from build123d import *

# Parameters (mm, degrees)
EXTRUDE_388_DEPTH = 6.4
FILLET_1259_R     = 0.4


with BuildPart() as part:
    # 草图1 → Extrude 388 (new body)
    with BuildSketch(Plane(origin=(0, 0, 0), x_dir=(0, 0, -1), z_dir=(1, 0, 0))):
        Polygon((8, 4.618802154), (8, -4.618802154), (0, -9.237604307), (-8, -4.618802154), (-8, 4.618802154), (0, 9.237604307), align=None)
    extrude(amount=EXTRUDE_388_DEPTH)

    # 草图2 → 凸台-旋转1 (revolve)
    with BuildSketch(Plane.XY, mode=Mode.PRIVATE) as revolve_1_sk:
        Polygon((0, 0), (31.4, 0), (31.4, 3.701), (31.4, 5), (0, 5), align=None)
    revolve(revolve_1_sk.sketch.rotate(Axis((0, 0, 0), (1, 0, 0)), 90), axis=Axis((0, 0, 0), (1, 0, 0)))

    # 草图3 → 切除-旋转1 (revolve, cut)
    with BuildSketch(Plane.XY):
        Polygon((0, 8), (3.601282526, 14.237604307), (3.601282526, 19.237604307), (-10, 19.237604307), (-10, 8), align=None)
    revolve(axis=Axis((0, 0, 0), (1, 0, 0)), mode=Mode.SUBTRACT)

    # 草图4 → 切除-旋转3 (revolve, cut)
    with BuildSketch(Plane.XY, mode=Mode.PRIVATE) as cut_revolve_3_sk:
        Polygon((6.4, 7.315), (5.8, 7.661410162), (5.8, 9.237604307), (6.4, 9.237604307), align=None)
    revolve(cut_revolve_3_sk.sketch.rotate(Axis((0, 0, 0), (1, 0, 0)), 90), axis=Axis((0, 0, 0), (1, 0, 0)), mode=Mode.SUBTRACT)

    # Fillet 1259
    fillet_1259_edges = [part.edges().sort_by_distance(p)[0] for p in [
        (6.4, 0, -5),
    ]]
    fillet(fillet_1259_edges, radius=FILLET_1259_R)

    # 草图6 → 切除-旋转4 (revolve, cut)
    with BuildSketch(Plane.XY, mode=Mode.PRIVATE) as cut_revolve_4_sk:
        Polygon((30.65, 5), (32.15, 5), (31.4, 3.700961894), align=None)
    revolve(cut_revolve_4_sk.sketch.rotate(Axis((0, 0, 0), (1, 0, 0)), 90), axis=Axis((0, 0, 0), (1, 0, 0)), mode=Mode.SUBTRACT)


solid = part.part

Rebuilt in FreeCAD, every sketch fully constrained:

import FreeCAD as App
import Part
import Sketcher
from FreeCAD import Vector
Q = App.Units.Quantity


def edges_at(feature, points):
    """Names of the edges that pass closest to the given points."""
    edges = feature.Shape.Edges
    near = lambda p: min(range(len(edges)), key=lambda i: edges[i].distToShape(Part.Vertex(*p))[0])
    return sorted({f"Edge{near(p) + 1}" for p in points})


def add_polygon(sketch, points):
    """Adds a closed chain of lines whose ends are joined by coincident constraints."""
    first, n = sketch.GeometryCount, len(points)
    for a, b in zip(points, points[1:] + points[:1]):
        sketch.addGeometry(Part.LineSegment(App.Vector(*a, 0), App.Vector(*b, 0)), False)
    for i in range(n):
        sketch.addConstraint(Sketcher.Constraint("Coincident", first + i, 2, first + (i + 1) % n, 1))

doc = App.newDocument("Part")
params = doc.addObject("Spreadsheet::Sheet", "Params")
for row, (alias, value) in enumerate([
    ("pad1_length", "6.4 mm"),
    ("sketch2_height", "5 mm"),
    ("sketch2_width", "31.4 mm"),
    ("revolution_angle", "360 deg"),
    ("sketch3_width", "10 mm"),
    ("sketch3_height", "5 mm"),
    ("groove_angle", "360 deg"),
    ("sketch4_width", "0.6 mm"),
    ("groove2_angle", "360 deg"),
    ("fillet_radius", "0.4 mm"),
    ("sketch5_width", "1.5 mm"),
    ("groove3_angle", "360 deg"),
], start=1):
    params.set(f"A{row}", alias)
    params.set(f"B{row}", "=" + value)
    params.setAlias(f"B{row}", alias)

body = doc.addObject("PartDesign::Body", "Body")

# Sketch on YZ plane
sketch1 = doc.addObject("Sketcher::SketchObject", "Sketch")
body.addObject(sketch1)
sketch1.AttachmentSupport = (doc.YZ_Plane, [""])
sketch1.MapMode = "FlatFace"
add_polygon(sketch1, [(-4.618802, -8), (4.618802, -8), (9.237604, 0), (4.618802, 8), (-4.618802, 8), (-9.237604, 0)])  # lines 0-5
sketch1.addConstraint([
    Sketcher.Constraint("Horizontal", 0),
    Sketcher.Constraint("Horizontal", 3),
    Sketcher.Constraint("Symmetric", 0, 2, 3, 2, -1, 1),
    Sketcher.Constraint("Symmetric", 1, 2, 4, 2, -1, 1),
    Sketcher.Constraint("PointOnObject", 1, 2, -1),
    Sketcher.Constraint("Parallel", 2, 5),
    Sketcher.Constraint("Vertical", 0, 2, 2, 2),
    Sketcher.Constraint("Angle", 1, Q("60 deg")),
    Sketcher.Constraint("DistanceY", 0, 2, -1, 1, Q("8 mm")),
    Sketcher.Constraint("DistanceX", 0, 1, 0, 2, Q("9.237604 mm")),
])
pad1 = doc.addObject("PartDesign::Pad", "Pad")
body.addObject(pad1)
pad1.Profile = sketch1
pad1.setExpression("Length", "Params.pad1_length")

# Sketch on XY plane
sketch2 = doc.addObject("Sketcher::SketchObject", "Sketch001")
body.addObject(sketch2)
sketch2.AttachmentSupport = (doc.XY_Plane, [""])
sketch2.MapMode = "FlatFace"
add_polygon(sketch2, [(0, 0), (31.4, 0), (31.4, 5), (0, 5)])  # lines 0-3
sketch2.addConstraint([
    Sketcher.Constraint("Horizontal", 0),
    Sketcher.Constraint("Vertical", 1),
    Sketcher.Constraint("Horizontal", 2),
    Sketcher.Constraint("Vertical", 3),
    Sketcher.Constraint("Coincident", 3, 2, -1, 1),
    Sketcher.Constraint("DistanceY", 1, 1, 1, 2, Q("5 mm")),
    Sketcher.Constraint("DistanceX", 0, 1, 0, 2, Q("31.4 mm")),
])
sketch2.setExpression("Constraints[9]", "Params.sketch2_height")
sketch2.setExpression("Constraints[10]", "Params.sketch2_width")
revolution = doc.addObject("PartDesign::Revolution", "Revolution")
body.addObject(revolution)
revolution.Profile = sketch2
revolution.ReferenceAxis = (sketch2, ["H_Axis"])
revolution.setExpression("Angle", "Params.revolution_angle")

# Sketch on XY plane
sketch3 = doc.addObject("Sketcher::SketchObject", "Sketch002")
body.addObject(sketch3)
sketch3.AttachmentSupport = (doc.XY_Plane, [""])
sketch3.MapMode = "FlatFace"
add_polygon(sketch3, [(0, 8), (3.601283, 14.237604), (3.601283, 19.237604), (-10, 19.237604), (-10, 8)])  # lines 0-4
sketch3.addConstraint([
    Sketcher.Constraint("Vertical", 1),
    Sketcher.Constraint("Horizontal", 2),
    Sketcher.Constraint("Vertical", 3),
    Sketcher.Constraint("Horizontal", 4),
    Sketcher.Constraint("PointOnObject", 4, 2, -2),
    Sketcher.Constraint("DistanceX", 4, 1, 4, 2, Q("10 mm")),
    Sketcher.Constraint("DistanceY", 1, 1, 1, 2, Q("5 mm")),
    Sketcher.Constraint("Angle", 0, Q("60 deg")),
    Sketcher.Constraint("DistanceY", -1, 1, 3, 2, Q("8 mm")),
    Sketcher.Constraint("DistanceX", 2, 2, 2, 1, Q("13.601283 mm")),
])
sketch3.setExpression("Constraints[10]", "Params.sketch3_width")
sketch3.setExpression("Constraints[11]", "Params.sketch3_height")
groove = doc.addObject("PartDesign::Groove", "Groove")
body.addObject(groove)
groove.Profile = sketch3
groove.ReferenceAxis = (sketch3, ["H_Axis"])
groove.setExpression("Angle", "Params.groove_angle")

# Sketch on XY plane
sketch4 = doc.addObject("Sketcher::SketchObject", "Sketch003")
body.addObject(sketch4)
sketch4.AttachmentSupport = (doc.XY_Plane, [""])
sketch4.MapMode = "FlatFace"
add_polygon(sketch4, [(5.8, 7.66141), (6.4, 7.315), (6.4, 9.237604), (5.8, 9.237604)])  # lines 0-3
sketch4.addConstraint([
    Sketcher.Constraint("Vertical", 1),
    Sketcher.Constraint("Horizontal", 2),
    Sketcher.Constraint("Vertical", 3),
    Sketcher.Constraint("Angle", 0, Q("-30 deg")),
    Sketcher.Constraint("DistanceX", 2, 2, 2, 1, Q("0.6 mm")),
    Sketcher.Constraint("DistanceX", -1, 1, 0, 2, Q("6.4 mm")),
    Sketcher.Constraint("DistanceY", -1, 1, 0, 2, Q("7.315 mm")),
    Sketcher.Constraint("DistanceY", 1, 1, 1, 2, Q("1.922604 mm")),
])
sketch4.setExpression("Constraints[8]", "Params.sketch4_width")
groove2 = doc.addObject("PartDesign::Groove", "Groove001")
body.addObject(groove2)
groove2.Profile = sketch4
groove2.ReferenceAxis = (sketch4, ["H_Axis"])
groove2.setExpression("Angle", "Params.groove2_angle")
doc.recompute()

fillet = doc.addObject("PartDesign::Fillet", "Fillet")
body.addObject(fillet)
fillet.Base = (groove2, edges_at(groove2, [(6.4, 0, -5)]))
fillet.setExpression("Radius", "Params.fillet_radius")

# Sketch on XY plane
sketch5 = doc.addObject("Sketcher::SketchObject", "Sketch004")
body.addObject(sketch5)
sketch5.AttachmentSupport = (doc.XY_Plane, [""])
sketch5.MapMode = "FlatFace"
add_polygon(sketch5, [(32.15, 5), (30.65, 5), (31.4, 3.700962)])  # lines 0-2
sketch5.addConstraint([
    Sketcher.Constraint("Horizontal", 0),
    Sketcher.Constraint("Equal", 1, 2),
    Sketcher.Constraint("Angle", 1, Q("-60 deg")),
    Sketcher.Constraint("DistanceX", 0, 2, 0, 1, Q("1.5 mm")),
    Sketcher.Constraint("DistanceY", -1, 1, 0, 2, Q("5 mm")),
    Sketcher.Constraint("DistanceX", -1, 1, 1, 2, Q("31.4 mm")),
])
sketch5.setExpression("Constraints[6]", "Params.sketch5_width")
groove3 = doc.addObject("PartDesign::Groove", "Groove002")
body.addObject(groove3)
groove3.Profile = sketch5
groove3.ReferenceAxis = (sketch5, ["H_Axis"])
groove3.setExpression("Angle", "Params.groove3_angle")

doc.recompute()
